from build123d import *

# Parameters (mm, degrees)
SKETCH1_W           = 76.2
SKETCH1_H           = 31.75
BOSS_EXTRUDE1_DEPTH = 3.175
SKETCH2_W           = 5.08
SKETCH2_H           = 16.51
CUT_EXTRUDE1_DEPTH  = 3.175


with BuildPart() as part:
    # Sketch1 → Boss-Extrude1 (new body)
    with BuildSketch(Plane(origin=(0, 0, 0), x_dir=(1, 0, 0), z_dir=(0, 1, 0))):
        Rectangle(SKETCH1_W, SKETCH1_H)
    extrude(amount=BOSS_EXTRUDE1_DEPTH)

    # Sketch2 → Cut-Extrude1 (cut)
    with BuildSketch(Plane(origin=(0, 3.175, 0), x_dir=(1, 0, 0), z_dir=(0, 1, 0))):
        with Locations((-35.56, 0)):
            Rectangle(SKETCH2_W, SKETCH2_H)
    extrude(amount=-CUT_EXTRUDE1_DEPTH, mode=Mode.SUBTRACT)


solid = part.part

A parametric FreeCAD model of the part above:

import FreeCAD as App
import Part
import Sketcher
Q = App.Units.Quantity

doc = App.newDocument("Part")
body = doc.addObject("PartDesign::Body", "Body")

# Sketch on XZ plane
sketch1 = body.newObject("Sketcher::SketchObject", "Sketch")
sketch1.AttachmentSupport = (doc.getObject("XZ_Plane"), [""])
sketch1.MapMode = "FlatFace"
sketch1.addGeometry([
    Part.LineSegment(App.Vector(-38, -16, 0), App.Vector(-38, 16, 0)),
    Part.LineSegment(App.Vector(-38, 16, 0), App.Vector(38, 16, 0)),
    Part.LineSegment(App.Vector(38, 16, 0), App.Vector(38, -16, 0)),
    Part.LineSegment(App.Vector(38, -16, 0), App.Vector(-38, -16, 0)),
], False)
sketch1.addConstraint([
    Sketcher.Constraint("Coincident", 0, 2, 1, 1),
    Sketcher.Constraint("Coincident", 1, 2, 2, 1),
    Sketcher.Constraint("Coincident", 2, 2, 3, 1),
    Sketcher.Constraint("Coincident", 3, 2, 0, 1),
    Sketcher.Constraint("Vertical", 0),
    Sketcher.Constraint("Horizontal", 1),
    Sketcher.Constraint("Vertical", 2),
    Sketcher.Constraint("Horizontal", 3),
    Sketcher.Constraint("Symmetric", 0, 2, 2, 2, -1, 1),
    Sketcher.Constraint("DistanceX", 1, 1, 1, 2, Q("3 in")),
    Sketcher.Constraint("DistanceY", 0, 1, 0, 2, Q("1.25 in")),
])
pad1 = body.newObject("PartDesign::Pad", "Pad")
pad1.Profile = sketch1
pad1.Length = Q("0.125 in")
pad1.Reversed = True

# Sketch on XZ plane
sketch2 = body.newObject("Sketcher::SketchObject", "Sketch001")
sketch2.AttachmentSupport = (doc.getObject("XZ_Plane"), [""])
sketch2.MapMode = "FlatFace"
sketch2.AttachmentOffset = App.Placement(App.Vector(0, 0, -0.125 * 25.4), App.Rotation())
sketch2.addGeometry([
    Part.LineSegment(App.Vector(-38, -8, 0), App.Vector(-38, 8, 0)),
    Part.LineSegment(App.Vector(-38, 8, 0), App.Vector(-33, 8, 0)),
    Part.LineSegment(App.Vector(-33, 8, 0), App.Vector(-33, -8, 0)),
    Part.LineSegment(App.Vector(-33, -8, 0), App.Vector(-38, -8, 0)),
], False)
sketch2.addConstraint([
    Sketcher.Constraint("Coincident", 0, 2, 1, 1),
    Sketcher.Constraint("Coincident", 1, 2, 2, 1),
    Sketcher.Constraint("Coincident", 2, 2, 3, 1),
    Sketcher.Constraint("Coincident", 3, 2, 0, 1),
    Sketcher.Constraint("Vertical", 0),
    Sketcher.Constraint("Horizontal", 1),
    Sketcher.Constraint("Vertical", 2),
    Sketcher.Constraint("Horizontal", 3),
    Sketcher.Constraint("DistanceX", 1, 1, 1, 2, Q("0.2 in")),
    Sketcher.Constraint("DistanceY", 0, 1, 0, 2, Q("0.65 in")),
    Sketcher.Constraint("DistanceX", 0, 2, -1, 1, Q("1.5 in")),
    Sketcher.Constraint("DistanceY", -1, 1, 0, 2, Q("0.325 in")),
])
pocket1 = body.newObject("PartDesign::Pocket", "Pocket")
pocket1.Profile = sketch2
pocket1.Length = Q("0.125 in")
pocket1.Reversed = True

doc.recompute()
